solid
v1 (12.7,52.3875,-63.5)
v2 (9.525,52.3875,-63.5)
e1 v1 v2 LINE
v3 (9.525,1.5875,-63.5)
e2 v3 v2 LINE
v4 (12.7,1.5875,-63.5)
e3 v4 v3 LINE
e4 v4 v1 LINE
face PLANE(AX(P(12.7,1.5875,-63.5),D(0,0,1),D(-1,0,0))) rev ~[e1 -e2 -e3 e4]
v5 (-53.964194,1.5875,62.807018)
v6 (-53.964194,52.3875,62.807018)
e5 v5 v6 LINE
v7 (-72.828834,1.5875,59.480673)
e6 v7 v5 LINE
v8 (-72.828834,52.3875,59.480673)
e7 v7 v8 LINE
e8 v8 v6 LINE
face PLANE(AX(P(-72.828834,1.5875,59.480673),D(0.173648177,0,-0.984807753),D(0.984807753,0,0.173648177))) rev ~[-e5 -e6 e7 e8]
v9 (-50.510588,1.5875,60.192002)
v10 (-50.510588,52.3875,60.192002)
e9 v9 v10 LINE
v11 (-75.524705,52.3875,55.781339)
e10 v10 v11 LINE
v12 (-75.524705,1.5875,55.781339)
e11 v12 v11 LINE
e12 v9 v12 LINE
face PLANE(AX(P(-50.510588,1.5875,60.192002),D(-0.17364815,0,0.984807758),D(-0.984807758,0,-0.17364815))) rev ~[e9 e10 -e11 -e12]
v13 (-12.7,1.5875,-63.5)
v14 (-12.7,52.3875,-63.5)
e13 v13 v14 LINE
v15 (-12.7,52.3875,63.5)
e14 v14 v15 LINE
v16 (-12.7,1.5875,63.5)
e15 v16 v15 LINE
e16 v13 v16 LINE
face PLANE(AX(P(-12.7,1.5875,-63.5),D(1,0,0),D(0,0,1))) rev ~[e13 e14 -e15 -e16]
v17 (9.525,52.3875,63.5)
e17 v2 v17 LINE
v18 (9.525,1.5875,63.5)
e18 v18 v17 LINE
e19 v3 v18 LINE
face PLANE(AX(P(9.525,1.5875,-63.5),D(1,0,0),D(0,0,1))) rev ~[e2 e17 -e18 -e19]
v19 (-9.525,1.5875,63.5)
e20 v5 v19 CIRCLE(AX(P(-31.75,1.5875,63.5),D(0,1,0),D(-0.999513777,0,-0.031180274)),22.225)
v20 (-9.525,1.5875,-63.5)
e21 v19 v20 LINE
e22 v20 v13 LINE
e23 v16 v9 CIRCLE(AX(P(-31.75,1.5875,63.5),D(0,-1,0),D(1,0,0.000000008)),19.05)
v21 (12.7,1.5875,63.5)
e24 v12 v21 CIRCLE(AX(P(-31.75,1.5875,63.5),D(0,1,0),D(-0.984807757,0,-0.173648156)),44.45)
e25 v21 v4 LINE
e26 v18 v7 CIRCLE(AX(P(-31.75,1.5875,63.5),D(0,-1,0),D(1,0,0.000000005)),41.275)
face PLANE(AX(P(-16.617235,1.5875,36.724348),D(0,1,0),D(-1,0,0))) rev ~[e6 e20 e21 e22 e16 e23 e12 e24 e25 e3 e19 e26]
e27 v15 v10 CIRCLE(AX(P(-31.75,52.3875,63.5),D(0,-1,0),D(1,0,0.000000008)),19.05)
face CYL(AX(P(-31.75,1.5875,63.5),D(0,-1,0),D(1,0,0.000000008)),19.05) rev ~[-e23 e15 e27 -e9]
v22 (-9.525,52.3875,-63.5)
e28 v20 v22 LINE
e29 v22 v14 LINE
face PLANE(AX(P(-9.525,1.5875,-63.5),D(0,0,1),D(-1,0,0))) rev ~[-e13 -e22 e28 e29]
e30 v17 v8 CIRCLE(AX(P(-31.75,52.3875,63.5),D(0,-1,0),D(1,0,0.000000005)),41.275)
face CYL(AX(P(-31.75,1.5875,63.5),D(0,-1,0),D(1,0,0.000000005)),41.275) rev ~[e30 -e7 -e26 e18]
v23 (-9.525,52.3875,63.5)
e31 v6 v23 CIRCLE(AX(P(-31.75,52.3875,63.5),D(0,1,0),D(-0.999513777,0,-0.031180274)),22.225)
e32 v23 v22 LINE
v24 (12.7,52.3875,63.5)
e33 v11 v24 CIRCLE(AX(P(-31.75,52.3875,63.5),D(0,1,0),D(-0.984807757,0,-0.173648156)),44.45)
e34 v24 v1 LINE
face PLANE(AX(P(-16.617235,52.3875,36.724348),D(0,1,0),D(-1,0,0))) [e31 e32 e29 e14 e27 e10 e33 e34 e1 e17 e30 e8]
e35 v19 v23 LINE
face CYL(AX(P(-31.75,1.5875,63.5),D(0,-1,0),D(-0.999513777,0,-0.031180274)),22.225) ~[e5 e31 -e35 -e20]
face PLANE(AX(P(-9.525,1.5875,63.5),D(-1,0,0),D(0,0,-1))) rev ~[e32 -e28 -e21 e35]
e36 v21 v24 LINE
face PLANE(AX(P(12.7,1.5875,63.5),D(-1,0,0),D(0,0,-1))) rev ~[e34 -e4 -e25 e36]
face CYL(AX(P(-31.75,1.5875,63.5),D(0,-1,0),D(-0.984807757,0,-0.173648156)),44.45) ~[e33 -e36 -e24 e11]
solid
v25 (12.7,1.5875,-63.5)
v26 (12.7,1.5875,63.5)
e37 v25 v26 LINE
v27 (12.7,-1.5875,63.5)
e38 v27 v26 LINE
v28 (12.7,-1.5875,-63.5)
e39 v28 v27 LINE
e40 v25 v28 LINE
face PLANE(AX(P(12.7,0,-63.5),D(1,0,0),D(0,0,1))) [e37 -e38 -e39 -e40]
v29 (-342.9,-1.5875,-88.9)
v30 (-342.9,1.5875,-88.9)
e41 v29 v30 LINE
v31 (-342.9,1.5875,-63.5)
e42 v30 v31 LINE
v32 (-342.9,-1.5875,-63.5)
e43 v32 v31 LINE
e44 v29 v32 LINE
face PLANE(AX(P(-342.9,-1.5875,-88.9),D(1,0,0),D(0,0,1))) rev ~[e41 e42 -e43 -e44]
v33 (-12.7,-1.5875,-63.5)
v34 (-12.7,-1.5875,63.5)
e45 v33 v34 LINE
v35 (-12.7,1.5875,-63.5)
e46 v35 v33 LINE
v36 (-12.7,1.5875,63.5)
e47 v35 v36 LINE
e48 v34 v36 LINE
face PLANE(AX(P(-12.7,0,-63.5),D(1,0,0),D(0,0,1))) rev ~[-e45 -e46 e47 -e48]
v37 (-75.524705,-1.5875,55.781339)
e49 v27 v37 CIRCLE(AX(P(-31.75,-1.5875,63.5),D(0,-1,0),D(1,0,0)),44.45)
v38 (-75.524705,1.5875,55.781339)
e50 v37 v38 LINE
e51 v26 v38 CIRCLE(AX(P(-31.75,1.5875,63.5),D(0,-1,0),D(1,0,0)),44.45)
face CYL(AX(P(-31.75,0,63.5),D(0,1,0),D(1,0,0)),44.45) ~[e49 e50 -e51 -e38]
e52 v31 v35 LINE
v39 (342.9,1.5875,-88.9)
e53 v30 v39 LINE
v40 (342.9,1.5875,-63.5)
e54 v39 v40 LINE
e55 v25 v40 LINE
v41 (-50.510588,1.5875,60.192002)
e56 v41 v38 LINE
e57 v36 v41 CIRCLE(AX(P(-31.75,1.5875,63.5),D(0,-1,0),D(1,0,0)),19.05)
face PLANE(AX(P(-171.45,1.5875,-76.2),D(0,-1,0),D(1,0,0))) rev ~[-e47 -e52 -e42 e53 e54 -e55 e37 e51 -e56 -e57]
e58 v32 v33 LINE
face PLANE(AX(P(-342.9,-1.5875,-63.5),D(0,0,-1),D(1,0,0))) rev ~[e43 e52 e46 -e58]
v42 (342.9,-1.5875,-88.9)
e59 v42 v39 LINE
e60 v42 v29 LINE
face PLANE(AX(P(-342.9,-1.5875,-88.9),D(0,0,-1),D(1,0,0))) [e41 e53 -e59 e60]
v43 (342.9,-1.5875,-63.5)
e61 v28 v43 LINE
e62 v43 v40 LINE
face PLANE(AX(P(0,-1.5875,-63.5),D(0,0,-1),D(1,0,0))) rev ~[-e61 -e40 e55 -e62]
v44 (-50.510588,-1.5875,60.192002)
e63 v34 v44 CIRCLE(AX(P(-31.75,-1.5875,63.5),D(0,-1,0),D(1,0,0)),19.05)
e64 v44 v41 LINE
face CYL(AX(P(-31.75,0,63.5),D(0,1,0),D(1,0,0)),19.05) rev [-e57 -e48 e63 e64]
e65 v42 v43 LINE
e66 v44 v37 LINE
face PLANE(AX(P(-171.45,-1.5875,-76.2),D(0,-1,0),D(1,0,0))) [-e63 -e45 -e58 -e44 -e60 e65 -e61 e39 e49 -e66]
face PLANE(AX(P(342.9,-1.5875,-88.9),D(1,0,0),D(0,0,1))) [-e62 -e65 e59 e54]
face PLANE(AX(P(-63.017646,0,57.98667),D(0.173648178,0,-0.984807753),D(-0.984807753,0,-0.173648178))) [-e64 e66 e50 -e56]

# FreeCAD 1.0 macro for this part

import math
import FreeCAD as App
import Part
import Sketcher

V = App.Vector
Q = App.Units.Quantity

doc = App.newDocument("Part")
params = doc.addObject("Spreadsheet::Sheet", "Params")
for row, (alias, value) in enumerate([
    ("sketch1_width", "1 in"),
    ("sketch1_height", "5 in"),
    ("pad1_length", "0.125 in"),
    ("sketch2_width", "1 in"),
    ("sketch2_height", "0.125 in"),
    ("revolution_angle", "190 deg"),
    ("sketch3_height", "1 in"),
    ("sketch3_width", "13.5 in"),
    ("pad2_length", "0.125 in"),
    ("sketch4_height", "1 in"),
    ("sketch4_width", "13.5 in"),
    ("pad3_length", "0.125 in"),
    ("sketch5_height", "5 in"),
    ("sketch5_radius", "1.75 in"),
    ("sketch5_radius2", "0.75 in"),
    ("sketch5_radius3", "1.625 in"),
    ("pad4_length", "2 in"),
], start=1):
    params.set(f"A{row}", alias)
    params.set(f"B{row}", "=" + value)
    params.setAlias(f"B{row}", alias)

body = doc.addObject("PartDesign::Body", "Body")

sketch1 = body.newObject("Sketcher::SketchObject", "Sketch")
sketch1.AttachmentSupport = (doc.getObject("XZ_Plane"), [""])
sketch1.MapMode = "FlatFace"
sketch1.addGeometry(Part.LineSegment(V(-13, 64, 0), V(-13, -64, 0)), False)
sketch1.addGeometry(Part.LineSegment(V(-13, -64, 0), V(13, -64, 0)), False)
sketch1.addGeometry(Part.LineSegment(V(13, -64, 0), V(13, 64, 0)), False)
sketch1.addGeometry(Part.LineSegment(V(13, 64, 0), V(-13, 64, 0)), False)
sketch1.addConstraint(Sketcher.Constraint("Coincident", 0, 2, 1, 1))
sketch1.addConstraint(Sketcher.Constraint("Coincident", 1, 2, 2, 1))
sketch1.addConstraint(Sketcher.Constraint("Coincident", 2, 2, 3, 1))
sketch1.addConstraint(Sketcher.Constraint("Coincident", 3, 2, 0, 1))
sketch1.addConstraint(Sketcher.Constraint("Vertical", 0))
sketch1.addConstraint(Sketcher.Constraint("Horizontal", 1))
sketch1.addConstraint(Sketcher.Constraint("Vertical", 2))
sketch1.addConstraint(Sketcher.Constraint("Horizontal", 3))
sketch1.addConstraint(Sketcher.Constraint("Symmetric", 0, 2, 2, 2, -1, 1))
sketch1.addConstraint(Sketcher.Constraint("DistanceX", 1, 1, 1, 2, Q("1 in")))
sketch1.addConstraint(Sketcher.Constraint("DistanceY", 0, 2, 0, 1, Q("5 in")))
sketch1.setExpression("Constraints[9]", "Params.sketch1_width")
sketch1.setExpression("Constraints[10]", "Params.sketch1_height")
pad1 = body.newObject("PartDesign::Pad", "Pad")
pad1.Profile = sketch1
pad1.setExpression("Length", "Params.pad1_length")
pad1.Midplane = True

sketch2 = body.newObject("Sketcher::SketchObject", "Sketch001")
sketch2.AttachmentSupport = (doc.getObject("XY_Plane"), [""])
sketch2.MapMode = "FlatFace"
sketch2.AttachmentOffset = App.Placement(V(0, 0, 2.5 * 25.4), App.Rotation())
sketch2.addGeometry(Part.LineSegment(V(-12.7, 1.6, 0), V(-12.7, -1.6, 0)), False)
sketch2.addGeometry(Part.LineSegment(V(-12.7, -1.6, 0), V(12.7, -1.6, 0)), False)
sketch2.addGeometry(Part.LineSegment(V(12.7, -1.6, 0), V(12.7, 1.6, 0)), False)
sketch2.addGeometry(Part.LineSegment(V(12.7, 1.6, 0), V(-12.7, 1.6, 0)), False)
sketch2.addGeometry(Part.LineSegment(V(-31.8, 1.6, 0), V(-31.8, -1.6, 0)), True)
sketch2.addConstraint(Sketcher.Constraint("Coincident", 0, 2, 1, 1))
sketch2.addConstraint(Sketcher.Constraint("Coincident", 1, 2, 2, 1))
sketch2.addConstraint(Sketcher.Constraint("Coincident", 2, 2, 3, 1))
sketch2.addConstraint(Sketcher.Constraint("Coincident", 3, 2, 0, 1))
sketch2.addConstraint(Sketcher.Constraint("Vertical", 0))
sketch2.addConstraint(Sketcher.Constraint("Horizontal", 1))
sketch2.addConstraint(Sketcher.Constraint("Vertical", 2))
sketch2.addConstraint(Sketcher.Constraint("Horizontal", 3))
sketch2.addConstraint(Sketcher.Constraint("Vertical", 4))
sketch2.addConstraint(Sketcher.Constraint("Symmetric", 0, 2, 2, 2, -1, 1))
sketch2.addConstraint(Sketcher.Constraint("Horizontal", 3, 2, 4, 1))
sketch2.addConstraint(Sketcher.Constraint("Horizontal", 1, 2, 4, 2))
sketch2.addConstraint(Sketcher.Constraint("DistanceX", 1, 1, 1, 2, Q("1 in")))
sketch2.addConstraint(Sketcher.Constraint("DistanceY", 0, 2, 0, 1, Q("0.125 in")))
sketch2.addConstraint(Sketcher.Constraint("DistanceX", 4, 1, -1, 1, Q("1.25 in")))
sketch2.setExpression("Constraints[12]", "Params.sketch2_width")
sketch2.setExpression("Constraints[13]", "Params.sketch2_height")
revolution = body.newObject("PartDesign::Revolution", "Revolution")
revolution.Profile = sketch2
revolution.ReferenceAxis = (sketch2, ["Axis0"])
revolution.setExpression("Angle", "Params.revolution_angle")

sketch3 = body.newObject("Sketcher::SketchObject", "Sketch002")
sketch3.AttachmentSupport = (doc.getObject("XZ_Plane"), [""])
sketch3.MapMode = "FlatFace"
sketch3.AttachmentOffset = App.Placement(V(0, 0, 0.0625 * 25.4), App.Rotation())
sketch3.addGeometry(Part.LineSegment(V(0, -64, 0), V(0, -89, 0)), False)
sketch3.addGeometry(Part.LineSegment(V(0, -89, 0), V(343, -89, 0)), False)
sketch3.addGeometry(Part.LineSegment(V(343, -89, 0), V(343, -64, 0)), False)
sketch3.addGeometry(Part.LineSegment(V(343, -64, 0), V(0, -64, 0)), False)
sketch3.addConstraint(Sketcher.Constraint("Coincident", 0, 2, 1, 1))
sketch3.addConstraint(Sketcher.Constraint("Coincident", 1, 2, 2, 1))
sketch3.addConstraint(Sketcher.Constraint("Coincident", 2, 2, 3, 1))
sketch3.addConstraint(Sketcher.Constraint("Coincident", 3, 2, 0, 1))
sketch3.addConstraint(Sketcher.Constraint("Vertical", 0))
sketch3.addConstraint(Sketcher.Constraint("Horizontal", 1))
sketch3.addConstraint(Sketcher.Constraint("Vertical", 2))
sketch3.addConstraint(Sketcher.Constraint("Horizontal", 3))
sketch3.addConstraint(Sketcher.Constraint("PointOnObject", 0, 2, -2))
sketch3.addConstraint(Sketcher.Constraint("DistanceY", 0, 2, 0, 1, Q("1 in")))
sketch3.addConstraint(Sketcher.Constraint("DistanceX", 1, 1, 1, 2, Q("13.5 in")))
sketch3.addConstraint(Sketcher.Constraint("DistanceY", 0, 2, -1, 1, Q("3.5 in")))
sketch3.setExpression("Constraints[9]", "Params.sketch3_height")
sketch3.setExpression("Constraints[10]", "Params.sketch3_width")
pad2 = body.newObject("PartDesign::Pad", "Pad001")
pad2.Profile = sketch3
pad2.setExpression("Length", "Params.pad2_length")
pad2.Reversed = True

sketch4 = body.newObject("Sketcher::SketchObject", "Sketch003")
sketch4.AttachmentSupport = (doc.getObject("XZ_Plane"), [""])
sketch4.MapMode = "FlatFace"
sketch4.AttachmentOffset = App.Placement(V(0, 0, 0.0625 * 25.4), App.Rotation())
sketch4.addGeometry(Part.LineSegment(V(-343, -64, 0), V(-343, -89, 0)), False)
sketch4.addGeometry(Part.LineSegment(V(-343, -89, 0), V(0, -89, 0)), False)
sketch4.addGeometry(Part.LineSegment(V(0, -89, 0), V(0, -64, 0)), False)
sketch4.addGeometry(Part.LineSegment(V(0, -64, 0), V(-343, -64, 0)), False)
sketch4.addConstraint(Sketcher.Constraint("Coincident", 0, 2, 1, 1))
sketch4.addConstraint(Sketcher.Constraint("Coincident", 1, 2, 2, 1))
sketch4.addConstraint(Sketcher.Constraint("Coincident", 2, 2, 3, 1))
sketch4.addConstraint(Sketcher.Constraint("Coincident", 3, 2, 0, 1))
sketch4.addConstraint(Sketcher.Constraint("Vertical", 0))
sketch4.addConstraint(Sketcher.Constraint("Horizontal", 1))
sketch4.addConstraint(Sketcher.Constraint("Vertical", 2))
sketch4.addConstraint(Sketcher.Constraint("Horizontal", 3))
sketch4.addConstraint(Sketcher.Constraint("PointOnObject", 1, 2, -2))
sketch4.addConstraint(Sketcher.Constraint("DistanceY", 0, 2, 0, 1, Q("1 in")))
sketch4.addConstraint(Sketcher.Constraint("DistanceX", 1, 1, 1, 2, Q("13.5 in")))
sketch4.addConstraint(Sketcher.Constraint("DistanceY", 0, 2, -1, 1, Q("3.5 in")))
sketch4.setExpression("Constraints[9]", "Params.sketch4_height")
sketch4.setExpression("Constraints[10]", "Params.sketch4_width")
pad3 = body.newObject("PartDesign::Pad", "Pad002")
pad3.Profile = sketch4
pad3.setExpression("Length", "Params.pad3_length")
pad3.Reversed = True
body2 = doc.addObject("PartDesign::Body", "Body001")

sketch5 = body2.newObject("Sketcher::SketchObject", "Sketch004")
sketch5.AttachmentSupport = (doc.getObject("XZ_Plane001"), [""])
sketch5.MapMode = "FlatFace"
sketch5.AttachmentOffset = App.Placement(V(0, 0, -0.0625 * 25.4), App.Rotation())
sketch5.addGeometry(Part.LineSegment(V(-50.5, 60.2, 0), V(-75.5, 55.8, 0)), False)
sketch5.addGeometry(Part.ArcOfCircle(Part.Circle(V(-31.8, 63.5, 0), V(0, 0, 1), 44.5), math.radians(0), math.radians(190)), False)
sketch5.addGeometry(Part.LineSegment(V(12.7, 63.5, 0), V(12.7, -63.5, 0)), False)
sketch5.addGeometry(Part.LineSegment(V(12.7, -63.5, 0), V(9.5, -63.5, 0)), False)
sketch5.addGeometry(Part.LineSegment(V(9.5, -63.5, 0), V(9.5, 63.5, 0)), False)
sketch5.addGeometry(Part.ArcOfCircle(Part.Circle(V(-31.7, 63.5, 0), V(0, 0, 1), 41.3), math.radians(0), math.radians(186)), False)
sketch5.addGeometry(Part.LineSegment(V(-72.8, 59.5, 0), V(-54, 62.8, 0)), False)
sketch5.addGeometry(Part.ArcOfCircle(Part.Circle(V(-31.8, 63.5, 0), V(0, 0, 1), 22.2), math.radians(0), math.radians(182)), False)
sketch5.addGeometry(Part.LineSegment(V(-9.5, 63.5, 0), V(-9.5, -63.5, 0)), False)
sketch5.addGeometry(Part.LineSegment(V(-9.5, -63.5, 0), V(-12.7, -63.5, 0)), False)
sketch5.addGeometry(Part.LineSegment(V(-12.7, -63.5, 0), V(-12.7, 63.5, 0)), False)
sketch5.addGeometry(Part.ArcOfCircle(Part.Circle(V(-31.8, 63.5, 0), V(0, 0, 1), 19.1), math.radians(0), math.radians(190)), False)
sketch5.addConstraint(Sketcher.Constraint("Coincident", 0, 2, 1, 2))
sketch5.addConstraint(Sketcher.Constraint("Tangent", 1, 1, 2, 1))
sketch5.addConstraint(Sketcher.Constraint("Coincident", 2, 2, 3, 1))
sketch5.addConstraint(Sketcher.Constraint("Coincident", 3, 2, 4, 1))
sketch5.addConstraint(Sketcher.Constraint("Tangent", 4, 2, 5, 1))
sketch5.addConstraint(Sketcher.Constraint("Coincident", 5, 2, 6, 1))
sketch5.addConstraint(Sketcher.Constraint("Coincident", 6, 2, 7, 2))
sketch5.addConstraint(Sketcher.Constraint("Tangent", 7, 1, 8, 1))
sketch5.addConstraint(Sketcher.Constraint("Coincident", 8, 2, 9, 1))
sketch5.addConstraint(Sketcher.Constraint("Coincident", 9, 2, 10, 1))
sketch5.addConstraint(Sketcher.Constraint("Tangent", 10, 2, 11, 1))
sketch5.addConstraint(Sketcher.Constraint("Coincident", 11, 2, 0, 1))
sketch5.addConstraint(Sketcher.Constraint("Vertical", 2))
sketch5.addConstraint(Sketcher.Constraint("Horizontal", 3))
sketch5.addConstraint(Sketcher.Constraint("Vertical", 4))
sketch5.addConstraint(Sketcher.Constraint("Vertical", 8))
sketch5.addConstraint(Sketcher.Constraint("Horizontal", 9))
sketch5.addConstraint(Sketcher.Constraint("Vertical", 10))
sketch5.addConstraint(Sketcher.Constraint("Coincident", 5, 3, 1, 3))
sketch5.addConstraint(Sketcher.Constraint("Coincident", 7, 3, 1, 3))
sketch5.addConstraint(Sketcher.Constraint("Coincident", 11, 3, 1, 3))
sketch5.addConstraint(Sketcher.Constraint("Symmetric", 3, 2, 7, 1, -1, 1))
sketch5.addConstraint(Sketcher.Constraint("Symmetric", 1, 1, 9, 2, -1, 1))
sketch5.addConstraint(Sketcher.Constraint("Parallel", 0, 6))
sketch5.addConstraint(Sketcher.Constraint("DistanceY", 2, 2, 2, 1, Q("5 in")))
sketch5.addConstraint(Sketcher.Constraint("Radius", 1, Q("1.75 in")))
sketch5.addConstraint(Sketcher.Constraint("Radius", 11, Q("0.75 in")))
sketch5.addConstraint(Sketcher.Constraint("Angle", 0, Q("-170.000002 deg")))
sketch5.addConstraint(Sketcher.Constraint("Radius", 5, Q("1.625 in")))
sketch5.addConstraint(Sketcher.Constraint("DistanceY", -1, 1, 0, 2, Q("55.781339 mm")))
sketch5.addConstraint(Sketcher.Constraint("DistanceX", 0, 2, 5, 2, Q("2.695871 mm")))
sketch5.setExpression("Constraints[24]", "Params.sketch5_height")
sketch5.setExpression("Constraints[25]", "Params.sketch5_radius")
sketch5.setExpression("Constraints[26]", "Params.sketch5_radius2")
sketch5.setExpression("Constraints[28]", "Params.sketch5_radius3")
pad4 = body2.newObject("PartDesign::Pad", "Pad003")
pad4.Profile = sketch5
pad4.setExpression("Length", "Params.pad4_length")
pad4.Reversed = True

doc.recompute()
